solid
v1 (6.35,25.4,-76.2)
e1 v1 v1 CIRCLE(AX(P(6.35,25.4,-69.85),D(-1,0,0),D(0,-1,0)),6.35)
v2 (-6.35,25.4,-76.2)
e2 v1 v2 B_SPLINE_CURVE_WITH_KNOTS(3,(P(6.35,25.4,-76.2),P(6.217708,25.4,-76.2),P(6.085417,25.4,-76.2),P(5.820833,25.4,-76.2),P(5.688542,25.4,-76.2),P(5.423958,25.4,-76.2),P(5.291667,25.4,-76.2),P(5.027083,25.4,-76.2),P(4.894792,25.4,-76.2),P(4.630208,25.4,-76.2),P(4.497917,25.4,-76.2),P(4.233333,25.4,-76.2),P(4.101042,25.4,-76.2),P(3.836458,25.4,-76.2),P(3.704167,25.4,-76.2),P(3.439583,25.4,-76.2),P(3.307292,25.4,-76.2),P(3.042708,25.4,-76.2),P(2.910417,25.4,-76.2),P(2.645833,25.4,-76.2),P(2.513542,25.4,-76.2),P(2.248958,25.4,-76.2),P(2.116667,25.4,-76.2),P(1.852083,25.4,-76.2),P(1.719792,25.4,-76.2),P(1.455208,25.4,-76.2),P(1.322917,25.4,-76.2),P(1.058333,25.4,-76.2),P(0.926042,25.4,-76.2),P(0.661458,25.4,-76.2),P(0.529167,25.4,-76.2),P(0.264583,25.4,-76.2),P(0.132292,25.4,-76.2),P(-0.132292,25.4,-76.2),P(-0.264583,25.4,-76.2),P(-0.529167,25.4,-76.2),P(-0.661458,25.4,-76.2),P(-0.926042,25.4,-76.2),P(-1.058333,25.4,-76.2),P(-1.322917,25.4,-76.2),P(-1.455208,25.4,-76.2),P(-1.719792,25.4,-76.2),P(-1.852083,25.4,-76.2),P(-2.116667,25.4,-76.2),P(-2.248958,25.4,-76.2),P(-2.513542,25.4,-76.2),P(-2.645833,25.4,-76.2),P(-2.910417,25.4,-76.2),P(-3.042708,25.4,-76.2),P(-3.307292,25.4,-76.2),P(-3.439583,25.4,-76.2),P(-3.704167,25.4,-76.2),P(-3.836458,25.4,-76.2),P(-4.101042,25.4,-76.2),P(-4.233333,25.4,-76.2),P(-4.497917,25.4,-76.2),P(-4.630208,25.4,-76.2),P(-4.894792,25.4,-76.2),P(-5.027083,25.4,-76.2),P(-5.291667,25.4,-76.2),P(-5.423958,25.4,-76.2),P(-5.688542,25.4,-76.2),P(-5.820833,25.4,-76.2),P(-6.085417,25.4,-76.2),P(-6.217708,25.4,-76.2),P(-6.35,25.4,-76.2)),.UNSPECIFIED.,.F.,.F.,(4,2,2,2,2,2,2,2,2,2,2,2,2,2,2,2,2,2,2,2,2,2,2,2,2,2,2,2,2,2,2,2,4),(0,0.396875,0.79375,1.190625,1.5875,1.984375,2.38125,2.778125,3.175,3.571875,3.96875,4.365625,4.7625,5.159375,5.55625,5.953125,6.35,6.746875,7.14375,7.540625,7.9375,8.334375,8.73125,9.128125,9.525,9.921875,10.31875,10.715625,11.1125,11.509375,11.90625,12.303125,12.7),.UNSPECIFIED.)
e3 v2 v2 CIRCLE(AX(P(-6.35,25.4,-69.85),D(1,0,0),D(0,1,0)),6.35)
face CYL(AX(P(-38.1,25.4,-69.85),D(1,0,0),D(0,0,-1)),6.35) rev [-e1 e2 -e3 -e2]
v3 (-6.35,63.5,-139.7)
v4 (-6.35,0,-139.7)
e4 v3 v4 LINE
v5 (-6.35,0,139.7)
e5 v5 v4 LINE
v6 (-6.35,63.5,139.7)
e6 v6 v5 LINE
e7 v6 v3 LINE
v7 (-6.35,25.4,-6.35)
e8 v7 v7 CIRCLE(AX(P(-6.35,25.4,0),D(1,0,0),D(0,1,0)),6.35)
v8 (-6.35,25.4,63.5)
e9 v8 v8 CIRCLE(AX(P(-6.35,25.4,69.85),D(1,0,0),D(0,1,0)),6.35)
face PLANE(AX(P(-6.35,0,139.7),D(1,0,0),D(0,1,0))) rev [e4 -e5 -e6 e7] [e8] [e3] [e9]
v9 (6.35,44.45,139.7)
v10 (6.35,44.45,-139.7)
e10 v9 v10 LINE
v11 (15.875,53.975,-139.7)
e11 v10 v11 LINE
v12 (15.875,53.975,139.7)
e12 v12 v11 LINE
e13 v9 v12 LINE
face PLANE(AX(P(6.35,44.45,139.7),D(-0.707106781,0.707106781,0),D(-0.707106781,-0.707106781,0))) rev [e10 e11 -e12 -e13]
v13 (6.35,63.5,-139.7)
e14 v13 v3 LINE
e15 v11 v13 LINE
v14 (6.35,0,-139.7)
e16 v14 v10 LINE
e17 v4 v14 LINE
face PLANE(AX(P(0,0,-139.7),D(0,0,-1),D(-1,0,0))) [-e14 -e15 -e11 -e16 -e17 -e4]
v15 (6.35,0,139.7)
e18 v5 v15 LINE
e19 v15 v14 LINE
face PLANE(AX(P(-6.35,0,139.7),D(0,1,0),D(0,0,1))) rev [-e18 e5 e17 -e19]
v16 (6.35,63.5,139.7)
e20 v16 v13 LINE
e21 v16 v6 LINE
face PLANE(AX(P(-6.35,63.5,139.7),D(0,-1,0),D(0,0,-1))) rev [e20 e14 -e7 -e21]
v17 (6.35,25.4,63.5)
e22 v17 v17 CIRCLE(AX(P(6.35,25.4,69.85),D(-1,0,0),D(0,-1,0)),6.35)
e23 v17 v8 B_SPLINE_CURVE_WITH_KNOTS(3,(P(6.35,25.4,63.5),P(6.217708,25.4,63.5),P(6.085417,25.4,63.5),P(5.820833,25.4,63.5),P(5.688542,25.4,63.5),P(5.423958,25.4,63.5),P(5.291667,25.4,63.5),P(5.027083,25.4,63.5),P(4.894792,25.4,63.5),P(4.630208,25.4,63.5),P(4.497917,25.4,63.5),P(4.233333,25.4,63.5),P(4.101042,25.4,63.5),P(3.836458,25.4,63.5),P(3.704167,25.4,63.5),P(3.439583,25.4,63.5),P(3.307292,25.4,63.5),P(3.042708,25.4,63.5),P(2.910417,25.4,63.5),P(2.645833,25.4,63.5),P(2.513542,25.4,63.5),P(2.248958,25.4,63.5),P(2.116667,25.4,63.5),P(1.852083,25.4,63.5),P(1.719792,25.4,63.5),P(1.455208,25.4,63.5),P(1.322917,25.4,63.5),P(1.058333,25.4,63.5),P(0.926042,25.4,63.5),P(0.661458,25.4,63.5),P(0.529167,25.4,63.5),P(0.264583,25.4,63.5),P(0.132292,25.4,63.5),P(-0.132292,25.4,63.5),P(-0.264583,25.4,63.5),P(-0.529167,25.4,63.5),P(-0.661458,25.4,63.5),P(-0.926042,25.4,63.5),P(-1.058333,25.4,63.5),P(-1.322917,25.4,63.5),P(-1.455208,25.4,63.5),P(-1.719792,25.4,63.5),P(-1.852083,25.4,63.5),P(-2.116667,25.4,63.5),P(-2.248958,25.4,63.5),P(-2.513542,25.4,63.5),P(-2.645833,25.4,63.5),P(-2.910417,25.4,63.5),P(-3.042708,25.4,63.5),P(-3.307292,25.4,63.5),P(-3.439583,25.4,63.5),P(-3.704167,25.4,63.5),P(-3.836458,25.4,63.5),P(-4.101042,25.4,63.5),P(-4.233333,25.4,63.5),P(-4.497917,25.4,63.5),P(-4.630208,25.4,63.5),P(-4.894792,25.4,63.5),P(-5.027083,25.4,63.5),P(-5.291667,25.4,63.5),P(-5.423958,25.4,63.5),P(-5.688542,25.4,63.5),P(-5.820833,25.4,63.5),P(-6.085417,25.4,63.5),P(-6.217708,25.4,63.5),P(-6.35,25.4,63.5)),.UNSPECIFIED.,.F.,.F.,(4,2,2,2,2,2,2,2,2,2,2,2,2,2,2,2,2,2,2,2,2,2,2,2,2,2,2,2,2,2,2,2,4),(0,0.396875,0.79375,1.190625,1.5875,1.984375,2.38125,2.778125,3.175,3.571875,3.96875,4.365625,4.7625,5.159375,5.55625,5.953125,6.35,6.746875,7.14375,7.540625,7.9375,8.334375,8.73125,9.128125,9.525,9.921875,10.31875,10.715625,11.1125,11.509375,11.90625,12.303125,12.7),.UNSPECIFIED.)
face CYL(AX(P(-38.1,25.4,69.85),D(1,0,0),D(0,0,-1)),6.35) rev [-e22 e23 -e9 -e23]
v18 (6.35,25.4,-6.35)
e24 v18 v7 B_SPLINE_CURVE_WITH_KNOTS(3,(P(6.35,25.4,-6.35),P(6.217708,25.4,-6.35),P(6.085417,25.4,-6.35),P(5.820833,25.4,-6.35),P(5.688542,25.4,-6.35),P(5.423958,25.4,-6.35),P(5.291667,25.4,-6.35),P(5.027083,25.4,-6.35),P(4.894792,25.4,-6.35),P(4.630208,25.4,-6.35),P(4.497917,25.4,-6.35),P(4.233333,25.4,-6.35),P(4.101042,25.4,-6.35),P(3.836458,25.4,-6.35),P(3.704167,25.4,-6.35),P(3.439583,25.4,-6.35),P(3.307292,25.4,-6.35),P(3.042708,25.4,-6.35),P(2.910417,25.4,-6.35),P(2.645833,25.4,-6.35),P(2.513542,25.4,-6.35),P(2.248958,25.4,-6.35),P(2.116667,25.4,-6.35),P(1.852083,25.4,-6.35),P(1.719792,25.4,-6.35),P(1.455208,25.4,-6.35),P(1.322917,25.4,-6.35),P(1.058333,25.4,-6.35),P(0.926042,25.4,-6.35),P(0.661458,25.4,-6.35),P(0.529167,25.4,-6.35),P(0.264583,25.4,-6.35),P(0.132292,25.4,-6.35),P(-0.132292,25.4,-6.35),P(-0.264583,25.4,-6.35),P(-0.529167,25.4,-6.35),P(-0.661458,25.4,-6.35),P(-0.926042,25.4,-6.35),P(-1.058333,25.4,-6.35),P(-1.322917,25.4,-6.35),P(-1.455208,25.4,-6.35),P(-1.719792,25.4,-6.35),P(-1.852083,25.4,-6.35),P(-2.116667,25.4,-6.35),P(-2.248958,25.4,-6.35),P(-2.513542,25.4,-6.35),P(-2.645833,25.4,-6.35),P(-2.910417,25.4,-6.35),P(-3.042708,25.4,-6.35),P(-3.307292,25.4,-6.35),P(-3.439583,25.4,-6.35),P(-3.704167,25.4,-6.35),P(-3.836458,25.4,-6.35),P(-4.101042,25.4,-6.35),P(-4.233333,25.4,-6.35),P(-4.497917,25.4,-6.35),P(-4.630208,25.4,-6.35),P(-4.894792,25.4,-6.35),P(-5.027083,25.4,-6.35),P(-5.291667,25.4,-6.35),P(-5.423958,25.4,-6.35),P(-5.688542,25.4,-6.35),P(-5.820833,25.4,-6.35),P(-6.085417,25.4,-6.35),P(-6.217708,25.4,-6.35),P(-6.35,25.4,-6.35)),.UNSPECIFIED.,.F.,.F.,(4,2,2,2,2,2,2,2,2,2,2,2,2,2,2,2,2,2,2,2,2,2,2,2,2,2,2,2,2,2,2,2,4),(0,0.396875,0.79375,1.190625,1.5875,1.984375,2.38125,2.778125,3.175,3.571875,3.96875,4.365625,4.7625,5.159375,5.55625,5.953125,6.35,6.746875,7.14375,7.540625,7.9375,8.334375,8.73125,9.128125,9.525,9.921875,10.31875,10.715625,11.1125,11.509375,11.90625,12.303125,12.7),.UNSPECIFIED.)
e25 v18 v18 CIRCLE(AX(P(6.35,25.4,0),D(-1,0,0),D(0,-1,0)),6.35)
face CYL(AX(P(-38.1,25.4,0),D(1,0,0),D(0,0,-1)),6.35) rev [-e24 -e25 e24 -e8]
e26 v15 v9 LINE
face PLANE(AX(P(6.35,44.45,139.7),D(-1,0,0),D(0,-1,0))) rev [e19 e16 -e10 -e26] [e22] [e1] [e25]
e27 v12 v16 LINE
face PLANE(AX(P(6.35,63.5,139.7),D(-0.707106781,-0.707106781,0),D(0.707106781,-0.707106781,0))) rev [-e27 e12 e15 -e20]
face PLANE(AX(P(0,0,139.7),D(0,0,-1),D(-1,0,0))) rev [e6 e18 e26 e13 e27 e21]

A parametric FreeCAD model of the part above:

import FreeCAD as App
import Part
import Sketcher
from FreeCAD import Vector
Q = App.Units.Quantity


def add_polygon(sketch, points):
    """Adds a closed chain of lines whose ends are joined by coincident constraints."""
    first, n = sketch.GeometryCount, len(points)
    for a, b in zip(points, points[1:] + points[:1]):
        sketch.addGeometry(Part.LineSegment(App.Vector(*a, 0), App.Vector(*b, 0)), False)
    for i in range(n):
        sketch.addConstraint(Sketcher.Constraint("Coincident", first + i, 2, first + (i + 1) % n, 1))

doc = App.newDocument("Part")
body = doc.addObject("PartDesign::Body", "Body")

sketch1 = body.newObject("Sketcher::SketchObject", "Sketch")
sketch1.AttachmentSupport = (doc.getObject("XY_Plane"), [""])
sketch1.MapMode = "FlatFace"
add_polygon(sketch1, [(16, 54), (6, 64), (-6, 64), (-6, 0), (6, 0), (6, 44)])
sketch1.addConstraint([
    Sketcher.Constraint("Horizontal", 1),
    Sketcher.Constraint("Vertical", 2),
    Sketcher.Constraint("Horizontal", 3),
    Sketcher.Constraint("Vertical", 4),
    Sketcher.Constraint("Symmetric", 2, 2, 3, 2, -1, 1),
    Sketcher.Constraint("Perpendicular", 0, 5),
    Sketcher.Constraint("Vertical", 0, 2, 3, 2),
    Sketcher.Constraint("Equal", 0, 5),
    Sketcher.Constraint("DistanceX", 1, 2, 1, 1, Q("0.5 in")),
    Sketcher.Constraint("DistanceY", 2, 2, 2, 1, Q("2.5 in")),
    Sketcher.Constraint("DistanceY", 4, 1, 4, 2, Q("1.75 in")),
])
pad1 = body.newObject("PartDesign::Pad", "Pad")
pad1.Profile = sketch1
pad1.Length = Q("11 in")
pad1.Midplane = True

sketch2 = body.newObject("Sketcher::SketchObject", "Sketch001")
sketch2.AttachmentSupport = (doc.getObject("YZ_Plane"), [""])
sketch2.MapMode = "FlatFace"
sketch2.addGeometry([
    Part.Circle(Vector(25, 70, 0), Vector(0, 0, 1), 6),
    Part.Circle(Vector(25, 0, 0), Vector(0, 0, 1), 6),
    Part.Circle(Vector(25, -70, 0), Vector(0, 0, 1), 6),
], False)
sketch2.addConstraint([
    Sketcher.Constraint("Equal", 0, 1),
    Sketcher.Constraint("Equal", 1, 2),
    Sketcher.Constraint("Symmetric", 0, 3, 2, 3, -1),
    Sketcher.Constraint("PointOnObject", 1, 3, -1),
    Sketcher.Constraint("Vertical", 0, 3, 1, 3),
    Sketcher.Constraint("Diameter", 0, Q("0.5 in")),
    Sketcher.Constraint("DistanceX", -1, 1, 0, 3, Q("1 in")),
    Sketcher.Constraint("DistanceY", 2, 3, 0, 3, Q("5.5 in")),
])
pocket1 = body.newObject("PartDesign::Pocket", "Pocket")
pocket1.Profile = sketch2
pocket1.Length = Q("3 in")
pocket1.Midplane = True

doc.recompute()
